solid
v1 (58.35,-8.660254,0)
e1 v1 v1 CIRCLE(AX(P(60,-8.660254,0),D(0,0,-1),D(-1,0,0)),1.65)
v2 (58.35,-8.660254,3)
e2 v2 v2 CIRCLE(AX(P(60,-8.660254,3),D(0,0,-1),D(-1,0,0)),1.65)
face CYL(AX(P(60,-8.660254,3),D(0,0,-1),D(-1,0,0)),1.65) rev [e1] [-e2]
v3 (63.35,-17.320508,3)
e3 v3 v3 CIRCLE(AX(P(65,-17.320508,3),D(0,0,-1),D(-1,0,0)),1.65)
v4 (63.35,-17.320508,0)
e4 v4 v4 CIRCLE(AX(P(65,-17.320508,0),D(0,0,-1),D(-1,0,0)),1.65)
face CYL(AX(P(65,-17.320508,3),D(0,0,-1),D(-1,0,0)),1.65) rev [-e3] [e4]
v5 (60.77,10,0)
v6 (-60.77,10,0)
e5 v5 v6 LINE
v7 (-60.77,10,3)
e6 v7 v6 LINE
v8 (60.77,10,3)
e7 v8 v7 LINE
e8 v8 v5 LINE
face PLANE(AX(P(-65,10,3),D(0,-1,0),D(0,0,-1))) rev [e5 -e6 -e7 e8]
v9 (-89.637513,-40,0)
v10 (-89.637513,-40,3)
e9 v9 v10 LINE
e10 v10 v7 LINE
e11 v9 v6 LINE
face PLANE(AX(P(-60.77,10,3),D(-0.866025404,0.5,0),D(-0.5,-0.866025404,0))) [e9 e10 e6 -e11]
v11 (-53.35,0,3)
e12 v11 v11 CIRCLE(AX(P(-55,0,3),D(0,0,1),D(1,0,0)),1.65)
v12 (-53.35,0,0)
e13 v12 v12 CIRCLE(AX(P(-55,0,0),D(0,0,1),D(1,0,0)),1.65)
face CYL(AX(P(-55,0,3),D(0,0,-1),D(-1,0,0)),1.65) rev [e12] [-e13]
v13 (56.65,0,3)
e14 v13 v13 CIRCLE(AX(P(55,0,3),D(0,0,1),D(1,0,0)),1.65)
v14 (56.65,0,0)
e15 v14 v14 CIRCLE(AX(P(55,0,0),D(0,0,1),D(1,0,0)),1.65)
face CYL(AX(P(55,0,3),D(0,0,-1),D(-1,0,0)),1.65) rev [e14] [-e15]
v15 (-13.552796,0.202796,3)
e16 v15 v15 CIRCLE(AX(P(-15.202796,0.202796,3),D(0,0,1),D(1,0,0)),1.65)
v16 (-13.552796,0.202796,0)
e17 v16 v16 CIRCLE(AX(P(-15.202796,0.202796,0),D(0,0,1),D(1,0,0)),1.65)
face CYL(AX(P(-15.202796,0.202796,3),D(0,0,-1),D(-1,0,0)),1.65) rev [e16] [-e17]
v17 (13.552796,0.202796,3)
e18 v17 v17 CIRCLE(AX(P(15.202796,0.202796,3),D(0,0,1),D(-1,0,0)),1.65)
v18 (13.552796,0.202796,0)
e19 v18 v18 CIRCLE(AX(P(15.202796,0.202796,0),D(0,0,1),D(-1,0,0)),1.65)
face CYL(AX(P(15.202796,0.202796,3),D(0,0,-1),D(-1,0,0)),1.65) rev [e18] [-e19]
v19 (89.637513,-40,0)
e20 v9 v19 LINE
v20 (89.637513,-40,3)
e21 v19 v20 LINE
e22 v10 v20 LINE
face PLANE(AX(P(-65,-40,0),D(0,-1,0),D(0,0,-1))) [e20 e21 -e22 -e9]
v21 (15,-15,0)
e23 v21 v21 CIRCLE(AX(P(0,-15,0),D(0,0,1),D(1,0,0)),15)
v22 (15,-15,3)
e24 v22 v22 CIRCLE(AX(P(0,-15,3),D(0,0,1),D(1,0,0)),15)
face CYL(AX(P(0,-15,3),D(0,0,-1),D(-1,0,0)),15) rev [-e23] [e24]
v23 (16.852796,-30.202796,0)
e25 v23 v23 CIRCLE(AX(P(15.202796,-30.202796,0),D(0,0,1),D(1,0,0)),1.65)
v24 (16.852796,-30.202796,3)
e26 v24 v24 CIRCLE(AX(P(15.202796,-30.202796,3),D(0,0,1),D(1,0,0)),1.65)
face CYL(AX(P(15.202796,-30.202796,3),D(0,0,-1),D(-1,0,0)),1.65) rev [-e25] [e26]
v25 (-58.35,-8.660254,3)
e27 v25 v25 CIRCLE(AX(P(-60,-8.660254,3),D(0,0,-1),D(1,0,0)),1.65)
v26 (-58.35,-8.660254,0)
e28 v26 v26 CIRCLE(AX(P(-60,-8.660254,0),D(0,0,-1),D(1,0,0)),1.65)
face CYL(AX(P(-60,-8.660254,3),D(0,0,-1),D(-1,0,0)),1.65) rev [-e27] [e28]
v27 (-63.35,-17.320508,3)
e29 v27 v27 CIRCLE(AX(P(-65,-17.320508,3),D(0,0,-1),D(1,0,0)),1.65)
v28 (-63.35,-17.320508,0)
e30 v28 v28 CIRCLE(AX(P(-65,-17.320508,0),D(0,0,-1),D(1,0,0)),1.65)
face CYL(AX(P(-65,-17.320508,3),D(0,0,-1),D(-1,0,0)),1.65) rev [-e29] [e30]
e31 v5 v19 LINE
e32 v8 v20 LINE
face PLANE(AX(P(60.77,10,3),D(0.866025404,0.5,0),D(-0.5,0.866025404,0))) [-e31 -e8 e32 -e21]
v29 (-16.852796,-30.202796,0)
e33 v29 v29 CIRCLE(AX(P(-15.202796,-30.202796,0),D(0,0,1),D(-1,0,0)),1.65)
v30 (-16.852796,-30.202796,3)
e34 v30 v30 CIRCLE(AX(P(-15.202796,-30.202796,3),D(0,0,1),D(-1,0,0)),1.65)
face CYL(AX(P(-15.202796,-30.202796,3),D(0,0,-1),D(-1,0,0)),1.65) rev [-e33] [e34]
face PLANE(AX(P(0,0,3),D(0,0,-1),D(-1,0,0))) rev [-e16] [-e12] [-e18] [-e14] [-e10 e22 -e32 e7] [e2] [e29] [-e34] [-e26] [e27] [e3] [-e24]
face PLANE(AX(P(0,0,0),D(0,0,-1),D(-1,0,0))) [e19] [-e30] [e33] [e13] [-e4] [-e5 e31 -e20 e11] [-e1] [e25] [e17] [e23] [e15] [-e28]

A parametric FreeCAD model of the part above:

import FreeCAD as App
import Part
import Sketcher

V = App.Vector
Q = App.Units.Quantity

doc = App.newDocument("Part")
body = doc.addObject("PartDesign::Body", "Body")

# Sketch on XY plane
sketch1 = doc.addObject("Sketcher::SketchObject", "Sketch")
body.addObject(sketch1)
sketch1.AttachmentSupport = (doc.XY_Plane, [""])
sketch1.MapMode = "FlatFace"
sketch1.addGeometry(Part.LineSegment(V(-65, 10, 0), V(-65, -10, 0)), False)
sketch1.addGeometry(Part.LineSegment(V(-65, -10, 0), V(65, -10, 0)), False)
sketch1.addGeometry(Part.LineSegment(V(65, -10, 0), V(65, 10, 0)), False)
sketch1.addGeometry(Part.LineSegment(V(65, 10, 0), V(-65, 10, 0)), False)
sketch1.addGeometry(Part.Circle(V(-55, 0, 0), V(0, 0, 1), 1.6), False)
sketch1.addGeometry(Part.Circle(V(55, 0, 0), V(0, 0, 1), 1.6), False)
sketch1.addConstraint(Sketcher.Constraint("Coincident", 0, 2, 1, 1))
sketch1.addConstraint(Sketcher.Constraint("Coincident", 1, 2, 2, 1))
sketch1.addConstraint(Sketcher.Constraint("Coincident", 2, 2, 3, 1))
sketch1.addConstraint(Sketcher.Constraint("Coincident", 3, 2, 0, 1))
sketch1.addConstraint(Sketcher.Constraint("Vertical", 0))
sketch1.addConstraint(Sketcher.Constraint("Horizontal", 1))
sketch1.addConstraint(Sketcher.Constraint("Vertical", 2))
sketch1.addConstraint(Sketcher.Constraint("Horizontal", 3))
sketch1.addConstraint(Sketcher.Constraint("Equal", 4, 5))
sketch1.addConstraint(Sketcher.Constraint("Symmetric", 4, 3, 5, 3, -1, 1))
sketch1.addConstraint(Sketcher.Constraint("Symmetric", 0, 2, 2, 2, -1, 1))
sketch1.addConstraint(Sketcher.Constraint("PointOnObject", 4, 3, -1))
sketch1.addConstraint(Sketcher.Constraint("Diameter", 4, Q("3.3 mm")))
sketch1.addConstraint(Sketcher.Constraint("DistanceX", 1, 1, 1, 2, Q("130 mm")))
sketch1.addConstraint(Sketcher.Constraint("DistanceY", 0, 2, 0, 1, Q("20 mm")))
sketch1.addConstraint(Sketcher.Constraint("DistanceX", 4, 3, -1, 1, Q("55 mm")))
pad1 = doc.addObject("PartDesign::Pad", "Pad")
body.addObject(pad1)
pad1.Profile = sketch1
pad1.Length = 3

# Sketch on XY plane
sketch2 = doc.addObject("Sketcher::SketchObject", "Sketch001")
body.addObject(sketch2)
sketch2.AttachmentSupport = (doc.XY_Plane, [""])
sketch2.MapMode = "FlatFace"
sketch2.AttachmentOffset = App.Placement(V(0, 0, 3), App.Rotation())
sketch2.addGeometry(Part.LineSegment(V(-65, -10, 0), V(-65, -40, 0)), False)
sketch2.addGeometry(Part.LineSegment(V(-65, -40, 0), V(65, -40, 0)), False)
sketch2.addGeometry(Part.LineSegment(V(65, -40, 0), V(65, -10, 0)), False)
sketch2.addGeometry(Part.LineSegment(V(65, -10, 0), V(-65, -10, 0)), False)
sketch2.addConstraint(Sketcher.Constraint("Coincident", 0, 2, 1, 1))
sketch2.addConstraint(Sketcher.Constraint("Coincident", 1, 2, 2, 1))
sketch2.addConstraint(Sketcher.Constraint("Coincident", 2, 2, 3, 1))
sketch2.addConstraint(Sketcher.Constraint("Coincident", 3, 2, 0, 1))
sketch2.addConstraint(Sketcher.Constraint("Vertical", 0))
sketch2.addConstraint(Sketcher.Constraint("Horizontal", 1))
sketch2.addConstraint(Sketcher.Constraint("Vertical", 2))
sketch2.addConstraint(Sketcher.Constraint("Horizontal", 3))
sketch2.addConstraint(Sketcher.Constraint("DistanceX", 1, 1, 1, 2, Q("130 mm")))
sketch2.addConstraint(Sketcher.Constraint("DistanceY", 0, 2, 0, 1, Q("30 mm")))
sketch2.addConstraint(Sketcher.Constraint("DistanceX", 0, 2, -1, 1, Q("65 mm")))
sketch2.addConstraint(Sketcher.Constraint("DistanceY", 0, 2, -1, 1, Q("40 mm")))
pad2 = doc.addObject("PartDesign::Pad", "Pad001")
body.addObject(pad2)
pad2.Profile = sketch2
pad2.Length = 3
pad2.Reversed = True

# Sketch on XY plane
sketch3 = doc.addObject("Sketcher::SketchObject", "Sketch002")
body.addObject(sketch3)
sketch3.AttachmentSupport = (doc.XY_Plane, [""])
sketch3.MapMode = "FlatFace"
sketch3.addGeometry(Part.Circle(V(0, -15, 0), V(0, 0, 1), 15), False)
sketch3.addGeometry(Part.Circle(V(-15.2, 0.2, 0), V(0, 0, 1), 1.6), False)
sketch3.addGeometry(Part.Circle(V(-15.2, -30.2, 0), V(0, 0, 1), 1.6), False)
sketch3.addGeometry(Part.Circle(V(15.2, -30.2, 0), V(0, 0, 1), 1.6), False)
sketch3.addGeometry(Part.Circle(V(15.2, 0.2, 0), V(0, 0, 1), 1.6), False)
sketch3.addConstraint(Sketcher.Constraint("Equal", 1, 2))
sketch3.addConstraint(Sketcher.Constraint("Equal", 2, 3))
sketch3.addConstraint(Sketcher.Constraint("Equal", 3, 4))
sketch3.addConstraint(Sketcher.Constraint("Symmetric", 2, 3, 3, 3, -2))
sketch3.addConstraint(Sketcher.Constraint("Symmetric", 1, 3, 4, 3, -2))
sketch3.addConstraint(Sketcher.Constraint("PointOnObject", 0, 3, -2))
sketch3.addConstraint(Sketcher.Constraint("Vertical", 1, 3, 2, 3))
sketch3.addConstraint(Sketcher.Constraint("Diameter", 0, Q("30 mm")))
sketch3.addConstraint(Sketcher.Constraint("Diameter", 1, Q("3.3 mm")))
sketch3.addConstraint(Sketcher.Constraint("DistanceY", 0, 3, -1, 1, Q("15 mm")))
sketch3.addConstraint(Sketcher.Constraint("DistanceY", 2, 3, 1, 3, Q("30.405592 mm")))
sketch3.addConstraint(Sketcher.Constraint("DistanceX", 2, 3, 3, 3, Q("30.405592 mm")))
sketch3.addConstraint(Sketcher.Constraint("DistanceY", -1, 1, 1, 3, Q("0.202796 mm")))
pocket1 = doc.addObject("PartDesign::Pocket", "Pocket")
body.addObject(pocket1)
pocket1.Profile = sketch3
pocket1.Length = 3
pocket1.Reversed = True

# Sketch on XY plane
sketch4 = doc.addObject("Sketcher::SketchObject", "Sketch003")
body.addObject(sketch4)
sketch4.AttachmentSupport = (doc.XY_Plane, [""])
sketch4.MapMode = "FlatFace"
sketch4.addGeometry(Part.LineSegment(V(65, 10, 0), V(60.8, 10, 0)), False)
sketch4.addGeometry(Part.LineSegment(V(60.8, 10, 0), V(65, 2.7, 0)), False)
sketch4.addGeometry(Part.LineSegment(V(65, 2.7, 0), V(65, 10, 0)), False)
sketch4.addGeometry(Part.LineSegment(V(-65, 10, 0), V(-65, 2.7, 0)), False)
sketch4.addGeometry(Part.LineSegment(V(-65, 2.7, 0), V(-60.8, 10, 0)), False)
sketch4.addGeometry(Part.LineSegment(V(-60.8, 10, 0), V(-65, 10, 0)), False)
sketch4.addConstraint(Sketcher.Constraint("Coincident", 0, 2, 1, 1))
sketch4.addConstraint(Sketcher.Constraint("Coincident", 1, 2, 2, 1))
sketch4.addConstraint(Sketcher.Constraint("Coincident", 2, 2, 0, 1))
sketch4.addConstraint(Sketcher.Constraint("Coincident", 3, 2, 4, 1))
sketch4.addConstraint(Sketcher.Constraint("Coincident", 4, 2, 5, 1))
sketch4.addConstraint(Sketcher.Constraint("Coincident", 5, 2, 3, 1))
sketch4.addConstraint(Sketcher.Constraint("Horizontal", 0))
sketch4.addConstraint(Sketcher.Constraint("Vertical", 2))
sketch4.addConstraint(Sketcher.Constraint("Vertical", 3))
sketch4.addConstraint(Sketcher.Constraint("Horizontal", 5))
sketch4.addConstraint(Sketcher.Constraint("Symmetric", 1, 2, 3, 2, -2))
sketch4.addConstraint(Sketcher.Constraint("Symmetric", 0, 2, 4, 2, -2))
sketch4.addConstraint(Sketcher.Constraint("Angle", 1, Q("-60 deg")))
sketch4.addConstraint(Sketcher.Constraint("DistanceY", -1, 1, 0, 2, Q("10 mm")))
sketch4.addConstraint(Sketcher.Constraint("DistanceX", -1, 1, 1, 2, Q("65 mm")))
sketch4.addConstraint(Sketcher.Constraint("DistanceX", 0, 2, 0, 1, Q("4.23 mm")))
pocket2 = doc.addObject("PartDesign::Pocket", "Pocket001")
body.addObject(pocket2)
pocket2.Profile = sketch4
pocket2.Length = 3
pocket2.Reversed = True

# Sketch on XY plane
sketch5 = doc.addObject("Sketcher::SketchObject", "Sketch004")
body.addObject(sketch5)
sketch5.AttachmentSupport = (doc.XY_Plane, [""])
sketch5.MapMode = "FlatFace"
sketch5.AttachmentOffset = App.Placement(V(0, 0, 3), App.Rotation())
sketch5.addGeometry(Part.LineSegment(V(-65, 3, 0), V(-90, -40, 0)), False)
sketch5.addGeometry(Part.LineSegment(V(-90, -40, 0), V(-65, -40, 0)), False)
sketch5.addGeometry(Part.LineSegment(V(-65, -40, 0), V(-65, 3, 0)), False)
sketch5.addGeometry(Part.LineSegment(V(65, -40, 0), V(90, -40, 0)), False)
sketch5.addGeometry(Part.LineSegment(V(90, -40, 0), V(65, 3, 0)), False)
sketch5.addGeometry(Part.LineSegment(V(65, 3, 0), V(65, -40, 0)), False)
sketch5.addConstraint(Sketcher.Constraint("Coincident", 0, 2, 1, 1))
sketch5.addConstraint(Sketcher.Constraint("Coincident", 1, 2, 2, 1))
sketch5.addConstraint(Sketcher.Constraint("Coincident", 2, 2, 0, 1))
sketch5.addConstraint(Sketcher.Constraint("Coincident", 3, 2, 4, 1))
sketch5.addConstraint(Sketcher.Constraint("Coincident", 4, 2, 5, 1))
sketch5.addConstraint(Sketcher.Constraint("Coincident", 5, 2, 3, 1))
sketch5.addConstraint(Sketcher.Constraint("Horizontal", 1))
sketch5.addConstraint(Sketcher.Constraint("Vertical", 2))
sketch5.addConstraint(Sketcher.Constraint("Horizontal", 3))
sketch5.addConstraint(Sketcher.Constraint("Vertical", 5))
sketch5.addConstraint(Sketcher.Constraint("Symmetric", 0, 2, 3, 2, -2))
sketch5.addConstraint(Sketcher.Constraint("Symmetric", 2, 2, 4, 2, -2))
sketch5.addConstraint(Sketcher.Constraint("Angle", 0, Q("-120 deg")))
sketch5.addConstraint(Sketcher.Constraint("DistanceY", 0, 2, -1, 1, Q("40 mm")))
sketch5.addConstraint(Sketcher.Constraint("DistanceX", 1, 2, -1, 1, Q("65 mm")))
sketch5.addConstraint(Sketcher.Constraint("DistanceX", 1, 1, 1, 2, Q("24.637513 mm")))
pad3 = doc.addObject("PartDesign::Pad", "Pad002")
body.addObject(pad3)
pad3.Profile = sketch5
pad3.Length = 3
pad3.Reversed = True

# Sketch on XY plane
sketch6 = doc.addObject("Sketcher::SketchObject", "Sketch005")
body.addObject(sketch6)
sketch6.AttachmentSupport = (doc.XY_Plane, [""])
sketch6.MapMode = "FlatFace"
sketch6.addGeometry(Part.Circle(V(60, -8.7, 0), V(0, 0, 1), 1.6), False)
sketch6.addGeometry(Part.Circle(V(65, -17.3, 0), V(0, 0, 1), 1.6), False)
sketch6.addGeometry(Part.Circle(V(-65, -17.3, 0), V(0, 0, 1), 1.6), False)
sketch6.addGeometry(Part.Circle(V(-60, -8.7, 0), V(0, 0, 1), 1.6), False)
sketch6.addConstraint(Sketcher.Constraint("Equal", 0, 1))
sketch6.addConstraint(Sketcher.Constraint("Equal", 1, 2))
sketch6.addConstraint(Sketcher.Constraint("Equal", 2, 3))
sketch6.addConstraint(Sketcher.Constraint("Symmetric", 1, 3, 2, 3, -2))
sketch6.addConstraint(Sketcher.Constraint("Symmetric", 0, 3, 3, 3, -2))
sketch6.addConstraint(Sketcher.Constraint("Diameter", 0, Q("3.3 mm")))
sketch6.addConstraint(Sketcher.Constraint("DistanceX", -1, 1, 0, 3, Q("60 mm")))
sketch6.addConstraint(Sketcher.Constraint("DistanceX", -1, 1, 1, 3, Q("65 mm")))
sketch6.addConstraint(Sketcher.Constraint("DistanceY", 1, 3, -1, 1, Q("17.320508 mm")))
sketch6.addConstraint(Sketcher.Constraint("DistanceY", 0, 3, -1, 1, Q("8.660254 mm")))
pocket3 = doc.addObject("PartDesign::Pocket", "Pocket002")
body.addObject(pocket3)
pocket3.Profile = sketch6
pocket3.Length = 3
pocket3.Reversed = True

doc.recompute()
